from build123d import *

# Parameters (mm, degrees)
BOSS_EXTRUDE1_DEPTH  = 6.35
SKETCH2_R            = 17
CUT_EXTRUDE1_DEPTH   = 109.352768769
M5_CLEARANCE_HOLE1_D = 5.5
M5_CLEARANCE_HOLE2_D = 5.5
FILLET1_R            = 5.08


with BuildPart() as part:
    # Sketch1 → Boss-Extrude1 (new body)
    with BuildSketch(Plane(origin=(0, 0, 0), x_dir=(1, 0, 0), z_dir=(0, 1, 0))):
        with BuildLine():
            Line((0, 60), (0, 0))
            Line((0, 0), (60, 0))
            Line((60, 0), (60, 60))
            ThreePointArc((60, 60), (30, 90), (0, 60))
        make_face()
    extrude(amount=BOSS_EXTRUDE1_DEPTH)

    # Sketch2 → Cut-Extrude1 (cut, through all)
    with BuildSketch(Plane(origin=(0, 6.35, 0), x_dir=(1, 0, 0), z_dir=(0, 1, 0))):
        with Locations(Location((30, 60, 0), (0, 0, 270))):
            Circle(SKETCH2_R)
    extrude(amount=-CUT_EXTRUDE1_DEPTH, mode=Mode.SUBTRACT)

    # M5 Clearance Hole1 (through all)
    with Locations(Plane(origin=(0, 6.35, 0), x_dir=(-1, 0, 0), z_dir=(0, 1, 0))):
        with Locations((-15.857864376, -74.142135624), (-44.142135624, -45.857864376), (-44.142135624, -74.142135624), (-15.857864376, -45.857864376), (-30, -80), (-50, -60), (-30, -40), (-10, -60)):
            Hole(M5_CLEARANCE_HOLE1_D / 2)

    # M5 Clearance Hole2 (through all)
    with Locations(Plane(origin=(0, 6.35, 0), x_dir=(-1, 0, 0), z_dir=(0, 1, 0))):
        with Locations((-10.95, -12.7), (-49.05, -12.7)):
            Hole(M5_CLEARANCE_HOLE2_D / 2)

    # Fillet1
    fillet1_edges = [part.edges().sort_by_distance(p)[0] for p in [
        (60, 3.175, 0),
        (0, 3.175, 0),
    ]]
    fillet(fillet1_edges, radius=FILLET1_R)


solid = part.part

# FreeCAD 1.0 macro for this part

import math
import FreeCAD as App
import Part
import Sketcher


def edges_at(feature, points):
    """Names of the edges that pass closest to the given points."""
    edges = feature.Shape.Edges
    near = lambda p: min(range(len(edges)), key=lambda i: edges[i].distToShape(Part.Vertex(*p))[0])
    return sorted({f"Edge{near(p) + 1}" for p in points})

doc = App.newDocument("Part")
body = doc.addObject("PartDesign::Body", "Body")

sketch1 = doc.addObject("Sketcher::SketchObject", "Sketch")
body.addObject(sketch1)
sketch1.AttachmentSupport = (doc.XZ_Plane, [""])
sketch1.MapMode = "FlatFace"
sketch1.addGeometry([
    Part.LineSegment(App.Vector(0, -60, 0), App.Vector(0, 0, 0)),
    Part.LineSegment(App.Vector(0, 0, 0), App.Vector(60, 0, 0)),
    Part.LineSegment(App.Vector(60, 0, 0), App.Vector(60, -60, 0)),
    Part.ArcOfCircle(Part.Circle(App.Vector(30, -60, 0), App.Vector(0, 0, 1), 30), math.radians(180), math.radians(360)),
], False)
sketch1.addConstraint([
    Sketcher.Constraint("Coincident", 0, 2, 1, 1),
    Sketcher.Constraint("Coincident", 1, 2, 2, 1),
    Sketcher.Constraint("Tangent", 2, 2, 3, 2),
    Sketcher.Constraint("Tangent", 3, 1, 0, 1),
    Sketcher.Constraint("Vertical", 0),
    Sketcher.Constraint("Horizontal", 1),
    Sketcher.Constraint("Vertical", 2),
    Sketcher.Constraint("Coincident", 0, 2, -1, 1),
    Sketcher.Constraint("Equal", 1, 0),
    Sketcher.Constraint("Radius", 3, 30.0),
])
pad1 = doc.addObject("PartDesign::Pad", "Pad")
body.addObject(pad1)
pad1.Profile = sketch1
pad1.Length = 6.35
pad1.Reversed = True

sketch2 = doc.addObject("Sketcher::SketchObject", "Sketch001")
body.addObject(sketch2)
sketch2.AttachmentSupport = (doc.XZ_Plane, [""])
sketch2.MapMode = "FlatFace"
sketch2.AttachmentOffset = App.Placement(App.Vector(0, 0, -6.35), App.Rotation())
sketch2.addGeometry(Part.Circle(App.Vector(30, -60, 0), App.Vector(0, 0, 1), 17), False)
sketch2.addConstraint([
    Sketcher.Constraint("Diameter", 0, 34.0),
    Sketcher.Constraint("DistanceX", -1, 1, 0, 3, 30.0),
    Sketcher.Constraint("DistanceY", 0, 3, -1, 1, 60.0),
])
pocket1 = doc.addObject("PartDesign::Pocket", "Pocket")
body.addObject(pocket1)
pocket1.Profile = sketch2
pocket1.Type = "ThroughAll"
pocket1.Reversed = True

sketch3 = doc.addObject("Sketcher::SketchObject", "Sketch002")
body.addObject(sketch3)
sketch3.AttachmentSupport = (doc.XZ_Plane, [""])
sketch3.MapMode = "FlatFace"
sketch3.AttachmentOffset = App.Placement(App.Vector(0, 0, -6.35), App.Rotation())
sketch3.addGeometry([
    Part.Circle(App.Vector(15.9, -74.1, 0), App.Vector(0, 0, 1), 2.8),
    Part.Circle(App.Vector(44.1, -45.9, 0), App.Vector(0, 0, 1), 2.8),
    Part.Circle(App.Vector(44.1, -74.1, 0), App.Vector(0, 0, 1), 2.8),
    Part.Circle(App.Vector(15.9, -45.9, 0), App.Vector(0, 0, 1), 2.8),
    Part.Circle(App.Vector(30, -80, 0), App.Vector(0, 0, 1), 2.8),
    Part.Circle(App.Vector(50, -60, 0), App.Vector(0, 0, 1), 2.8),
    Part.Circle(App.Vector(30, -40, 0), App.Vector(0, 0, 1), 2.8),
    Part.Circle(App.Vector(10, -60, 0), App.Vector(0, 0, 1), 2.8),
], False)
sketch3.addConstraint([
    Sketcher.Constraint("Equal", 0, 1),
    Sketcher.Constraint("Equal", 1, 2),
    Sketcher.Constraint("Equal", 2, 3),
    Sketcher.Constraint("Equal", 3, 4),
    Sketcher.Constraint("Equal", 4, 5),
    Sketcher.Constraint("Equal", 5, 6),
    Sketcher.Constraint("Equal", 6, 7),
    Sketcher.Constraint("Horizontal", 0, 3, 2, 3),
    Sketcher.Constraint("Horizontal", 1, 3, 3, 3),
    Sketcher.Constraint("Horizontal", 5, 3, 7, 3),
    Sketcher.Constraint("Vertical", 1, 3, 2, 3),
    Sketcher.Constraint("Vertical", 0, 3, 3, 3),
    Sketcher.Constraint("Vertical", 4, 3, 6, 3),
    Sketcher.Constraint("Diameter", 0, 5.5),
    Sketcher.Constraint("DistanceX", -1, 1, 4, 3, 30.0),
    Sketcher.Constraint("DistanceY", 4, 3, -1, 1, 80.0),
    Sketcher.Constraint("DistanceX", -1, 1, 5, 3, 50.0),
    Sketcher.Constraint("DistanceY", 5, 3, -1, 1, 60.0),
    Sketcher.Constraint("DistanceY", 6, 3, -1, 1, 40.0),
    Sketcher.Constraint("DistanceX", -1, 1, 7, 3, 10.0),
    Sketcher.Constraint("DistanceX", 0, 3, 1, 3, 28.284271),
    Sketcher.Constraint("DistanceY", 0, 3, 1, 3, 28.284271),
    Sketcher.Constraint("DistanceX", -1, 1, 0, 3, 15.857864),
    Sketcher.Constraint("DistanceY", 0, 3, -1, 1, 74.142136),
])
doc.recompute()
hole = doc.addObject("PartDesign::Hole", "Hole")
body.addObject(hole)
hole.Profile = sketch3
hole.ThreadType = "None"
hole.Diameter = 5.5
hole.DepthType = "ThroughAll"
hole.Reversed = True

sketch4 = doc.addObject("Sketcher::SketchObject", "Sketch003")
body.addObject(sketch4)
sketch4.AttachmentSupport = (doc.XZ_Plane, [""])
sketch4.MapMode = "FlatFace"
sketch4.AttachmentOffset = App.Placement(App.Vector(0, 0, -6.35), App.Rotation())
sketch4.addGeometry([
    Part.Circle(App.Vector(10.9, -12.7, 0), App.Vector(0, 0, 1), 2.8),
    Part.Circle(App.Vector(49, -12.7, 0), App.Vector(0, 0, 1), 2.8),
], False)
sketch4.addConstraint([
    Sketcher.Constraint("Equal", 0, 1),
    Sketcher.Constraint("Horizontal", 0, 3, 1, 3),
    Sketcher.Constraint("Diameter", 0, 5.5),
    Sketcher.Constraint("DistanceY", 0, 3, -1, 1, 12.7),
    Sketcher.Constraint("DistanceX", 0, 3, 1, 3, 38.1),
    Sketcher.Constraint("DistanceX", -1, 1, 0, 3, 10.95),
])
doc.recompute()
hole2 = doc.addObject("PartDesign::Hole", "Hole001")
body.addObject(hole2)
hole2.Profile = sketch4
hole2.ThreadType = "None"
hole2.Diameter = 5.5
hole2.DepthType = "ThroughAll"
hole2.Reversed = True
doc.recompute()

fillet = doc.addObject("PartDesign::Fillet", "Fillet")
body.addObject(fillet)
fillet.Base = (hole2, edges_at(hole2, [(60, 3.175, 0), (0, 3.175, 0)]))
fillet.Radius = 5.08

doc.recompute()
